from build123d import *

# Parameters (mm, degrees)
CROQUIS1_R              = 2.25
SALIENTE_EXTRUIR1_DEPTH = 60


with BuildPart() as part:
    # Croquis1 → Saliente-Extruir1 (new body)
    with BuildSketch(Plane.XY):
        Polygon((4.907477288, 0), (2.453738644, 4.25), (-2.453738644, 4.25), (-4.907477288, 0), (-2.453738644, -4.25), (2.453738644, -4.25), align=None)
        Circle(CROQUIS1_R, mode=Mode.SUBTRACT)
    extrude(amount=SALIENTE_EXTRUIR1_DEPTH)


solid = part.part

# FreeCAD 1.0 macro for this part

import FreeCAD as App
import Part
import Sketcher

V = App.Vector
Q = App.Units.Quantity

doc = App.newDocument("Part")
params = doc.addObject("Spreadsheet::Sheet", "Params")
for row, (alias, value) in enumerate([
    ("sketch1_diameter", "4.5 mm"),
    ("pad1_length", "60 mm"),
], start=1):
    params.set(f"A{row}", alias)
    params.set(f"B{row}", "=" + value)
    params.setAlias(f"B{row}", alias)

body = doc.addObject("PartDesign::Body", "Body")

# Sketch on XY plane
sketch1 = doc.addObject("Sketcher::SketchObject", "Sketch")
body.addObject(sketch1)
sketch1.AttachmentSupport = (doc.XY_Plane, [""])
sketch1.MapMode = "FlatFace"
sketch1.addGeometry([
    Part.LineSegment(V(4.9, 0, 0), V(2.5, 4.2, 0)),  # 0
    Part.LineSegment(V(2.5, 4.2, 0), V(-2.5, 4.2, 0)),  # 1
    Part.LineSegment(V(-2.5, 4.2, 0), V(-4.9, 0, 0)),  # 2
    Part.LineSegment(V(-4.9, 0, 0), V(-2.5, -4.2, 0)),  # 3
    Part.LineSegment(V(-2.5, -4.2, 0), V(2.5, -4.2, 0)),  # 4
    Part.LineSegment(V(2.5, -4.2, 0), V(4.9, 0, 0)),  # 5
    Part.Circle(V(0, 0, 0), V(0, 0, 1), 2.2),  # 6
], False)
sketch1.addConstraint([
    Sketcher.Constraint("Coincident", 0, 2, 1, 1),
    Sketcher.Constraint("Coincident", 1, 2, 2, 1),
    Sketcher.Constraint("Coincident", 2, 2, 3, 1),
    Sketcher.Constraint("Coincident", 3, 2, 4, 1),
    Sketcher.Constraint("Coincident", 4, 2, 5, 1),
    Sketcher.Constraint("Coincident", 5, 2, 0, 1),
    Sketcher.Constraint("Horizontal", 1),
    Sketcher.Constraint("Horizontal", 4),
    Sketcher.Constraint("Coincident", 6, 3, -1, 1),
    Sketcher.Constraint("Symmetric", 0, 2, 3, 2, -1, 1),
    Sketcher.Constraint("Symmetric", 2, 2, 5, 2, -1, 1),
    Sketcher.Constraint("PointOnObject", 2, 2, -1),
    Sketcher.Constraint("Parallel", 2, 5),
    Sketcher.Constraint("Vertical", 1, 2, 3, 2),
    Sketcher.Constraint("Diameter", 6, 4.5),
    Sketcher.Constraint("Angle", 0, Q("120 deg")),
    Sketcher.Constraint("DistanceY", 3, 2, 1, 2, 8.5),
    Sketcher.Constraint("DistanceX", 1, 2, 1, 1, 4.907477),
])
sketch1.setExpression("Constraints[14]", "Params.sketch1_diameter")
pad1 = doc.addObject("PartDesign::Pad", "Pad")
body.addObject(pad1)
pad1.Profile = sketch1
pad1.setExpression("Length", "Params.pad1_length")

doc.recompute()
